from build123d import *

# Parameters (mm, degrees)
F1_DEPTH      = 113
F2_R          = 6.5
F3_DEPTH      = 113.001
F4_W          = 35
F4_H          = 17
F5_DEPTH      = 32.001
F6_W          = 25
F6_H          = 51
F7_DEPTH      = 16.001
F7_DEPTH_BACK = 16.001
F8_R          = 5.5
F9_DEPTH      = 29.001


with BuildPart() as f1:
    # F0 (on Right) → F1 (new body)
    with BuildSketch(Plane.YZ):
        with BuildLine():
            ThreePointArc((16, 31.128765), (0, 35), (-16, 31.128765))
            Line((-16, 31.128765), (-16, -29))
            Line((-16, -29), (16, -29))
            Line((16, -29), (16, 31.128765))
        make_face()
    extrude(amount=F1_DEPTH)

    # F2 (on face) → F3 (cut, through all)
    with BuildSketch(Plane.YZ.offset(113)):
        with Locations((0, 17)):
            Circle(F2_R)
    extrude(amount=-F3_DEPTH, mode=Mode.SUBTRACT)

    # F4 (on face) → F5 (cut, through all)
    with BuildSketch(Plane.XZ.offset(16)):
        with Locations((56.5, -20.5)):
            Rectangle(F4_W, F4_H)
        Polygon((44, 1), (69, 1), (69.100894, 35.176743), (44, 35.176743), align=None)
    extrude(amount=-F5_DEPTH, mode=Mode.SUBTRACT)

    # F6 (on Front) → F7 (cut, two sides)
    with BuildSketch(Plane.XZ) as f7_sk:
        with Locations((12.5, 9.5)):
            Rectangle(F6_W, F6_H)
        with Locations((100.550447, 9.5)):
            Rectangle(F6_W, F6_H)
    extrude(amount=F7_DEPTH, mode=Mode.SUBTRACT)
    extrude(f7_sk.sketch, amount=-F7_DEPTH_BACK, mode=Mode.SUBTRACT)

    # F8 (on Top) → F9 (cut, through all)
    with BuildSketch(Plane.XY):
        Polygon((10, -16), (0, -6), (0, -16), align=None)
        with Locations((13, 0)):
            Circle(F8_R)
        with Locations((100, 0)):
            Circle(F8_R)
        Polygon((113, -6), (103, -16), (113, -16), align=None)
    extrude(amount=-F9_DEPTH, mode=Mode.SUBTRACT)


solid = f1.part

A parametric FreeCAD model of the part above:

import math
import FreeCAD as App
import Part
import Sketcher
from FreeCAD import Vector
Q = App.Units.Quantity


def add_polygon(sketch, points):
    """Adds a closed chain of lines whose ends are joined by coincident constraints."""
    first, n = sketch.GeometryCount, len(points)
    for a, b in zip(points, points[1:] + points[:1]):
        sketch.addGeometry(Part.LineSegment(App.Vector(*a, 0), App.Vector(*b, 0)), False)
    for i in range(n):
        sketch.addConstraint(Sketcher.Constraint("Coincident", first + i, 2, first + (i + 1) % n, 1))

doc = App.newDocument("Part")
body = doc.addObject("PartDesign::Body", "Body")

sketch1 = body.newObject("Sketcher::SketchObject", "Sketch")
sketch1.AttachmentSupport = (doc.getObject("YZ_Plane"), [""])
sketch1.MapMode = "FlatFace"
sketch1.addGeometry(Part.ArcOfCircle(Part.Circle(Vector(0, -0.000001, 0), Vector(0, 0, 1), 35.000001), math.radians(62.797107), math.radians(117.202893)), False)
sketch1.addGeometry(Part.LineSegment(Vector(-16, 31.128765, 0), Vector(-16, -29, 0)), False)
sketch1.addGeometry(Part.LineSegment(Vector(-16, -29, 0), Vector(16, -29, 0)), False)
sketch1.addGeometry(Part.LineSegment(Vector(16, -29, 0), Vector(16, 31.128765, 0)), False)
sketch1.addConstraint(Sketcher.Constraint("Coincident", 0, 2, 1, 1))
sketch1.addConstraint(Sketcher.Constraint("Coincident", 1, 2, 2, 1))
sketch1.addConstraint(Sketcher.Constraint("Coincident", 2, 2, 3, 1))
sketch1.addConstraint(Sketcher.Constraint("Coincident", 3, 2, 0, 1))
sketch1.addConstraint(Sketcher.Constraint("Vertical", 1))
sketch1.addConstraint(Sketcher.Constraint("Horizontal", 2))
sketch1.addConstraint(Sketcher.Constraint("Vertical", 3))
sketch1.addConstraint(Sketcher.Constraint("Coincident", 0, 3, -1, 1))
sketch1.addConstraint(Sketcher.Constraint("Horizontal", 0, 2, 3, 2))
sketch1.addConstraint(Sketcher.Constraint("Radius", 0, Q("35.000001 mm")))
sketch1.addConstraint(Sketcher.Constraint("DistanceX", 2, 1, 2, 2, Q("32 mm")))
sketch1.addConstraint(Sketcher.Constraint("DistanceY", 1, 2, -1, 1, Q("29 mm")))
pad1 = body.newObject("PartDesign::Pad", "Pad")
pad1.Profile = sketch1
pad1.Length = 113

sketch2 = body.newObject("Sketcher::SketchObject", "Sketch001")
sketch2.AttachmentSupport = (doc.getObject("YZ_Plane"), [""])
sketch2.MapMode = "FlatFace"
sketch2.AttachmentOffset = App.Placement(Vector(0, 0, 113), App.Rotation())
sketch2.addGeometry(Part.Circle(Vector(0, 17, 0), Vector(0, 0, 1), 6.5), False)
sketch2.addConstraint(Sketcher.Constraint("PointOnObject", 0, 3, -2))
sketch2.addConstraint(Sketcher.Constraint("Diameter", 0, Q("13 mm")))
sketch2.addConstraint(Sketcher.Constraint("DistanceY", -1, 1, 0, 3, Q("17 mm")))
pocket1 = body.newObject("PartDesign::Pocket", "Pocket")
pocket1.Profile = sketch2
pocket1.Type = "ThroughAll"

sketch3 = body.newObject("Sketcher::SketchObject", "Sketch002")
sketch3.AttachmentSupport = (doc.getObject("XZ_Plane"), [""])
sketch3.MapMode = "FlatFace"
sketch3.AttachmentOffset = App.Placement(Vector(0, 0, 16), App.Rotation())
add_polygon(sketch3, [(39, -12), (39, -29), (74, -29), (74, -12)])
add_polygon(sketch3, [(44, 1), (69, 1), (69.100894, 35.176743), (44, 35.176743)])
sketch3.addConstraint(Sketcher.Constraint("Vertical", 0))
sketch3.addConstraint(Sketcher.Constraint("Horizontal", 1))
sketch3.addConstraint(Sketcher.Constraint("Vertical", 2))
sketch3.addConstraint(Sketcher.Constraint("Horizontal", 3))
sketch3.addConstraint(Sketcher.Constraint("Horizontal", 4))
sketch3.addConstraint(Sketcher.Constraint("Horizontal", 6))
sketch3.addConstraint(Sketcher.Constraint("Vertical", 7))
sketch3.addConstraint(Sketcher.Constraint("DistanceX", 1, 1, 1, 2, Q("35 mm")))
sketch3.addConstraint(Sketcher.Constraint("DistanceX", 4, 1, 4, 2, Q("25 mm")))
sketch3.addConstraint(Sketcher.Constraint("DistanceY", 0, 2, 0, 1, Q("17 mm")))
sketch3.addConstraint(Sketcher.Constraint("DistanceX", -1, 1, 0, 2, Q("39 mm")))
sketch3.addConstraint(Sketcher.Constraint("DistanceY", 0, 2, -1, 1, Q("29 mm")))
sketch3.addConstraint(Sketcher.Constraint("DistanceX", -1, 1, 4, 2, Q("69 mm")))
sketch3.addConstraint(Sketcher.Constraint("DistanceY", -1, 1, 4, 2, Q("1 mm")))
sketch3.addConstraint(Sketcher.Constraint("Distance", 5, Q("34.176892 mm")))
sketch3.addConstraint(Sketcher.Constraint("DistanceX", 6, 2, 6, 1, Q("25.100894 mm")))
pocket2 = body.newObject("PartDesign::Pocket", "Pocket001")
pocket2.Profile = sketch3
pocket2.Type = "ThroughAll"

sketch4 = body.newObject("Sketcher::SketchObject", "Sketch003")
sketch4.AttachmentSupport = (doc.getObject("XZ_Plane"), [""])
sketch4.MapMode = "FlatFace"
add_polygon(sketch4, [(0, 35), (0, -16), (25, -16), (25, 35)])
add_polygon(sketch4, [(88.050447, 35), (88.050447, -16), (113.050447, -16), (113.050447, 35)])
sketch4.addConstraint(Sketcher.Constraint("Vertical", 0))
sketch4.addConstraint(Sketcher.Constraint("Horizontal", 1))
sketch4.addConstraint(Sketcher.Constraint("Vertical", 2))
sketch4.addConstraint(Sketcher.Constraint("Horizontal", 3))
sketch4.addConstraint(Sketcher.Constraint("Vertical", 4))
sketch4.addConstraint(Sketcher.Constraint("Horizontal", 5))
sketch4.addConstraint(Sketcher.Constraint("Vertical", 6))
sketch4.addConstraint(Sketcher.Constraint("Horizontal", 7))
sketch4.addConstraint(Sketcher.Constraint("PointOnObject", 0, 2, -2))
sketch4.addConstraint(Sketcher.Constraint("Horizontal", 1, 2, 4, 2))
sketch4.addConstraint(Sketcher.Constraint("Horizontal", 3, 2, 6, 2))
sketch4.addConstraint(Sketcher.Constraint("Equal", 3, 5))
sketch4.addConstraint(Sketcher.Constraint("DistanceX", 1, 1, 1, 2, Q("25 mm")))
sketch4.addConstraint(Sketcher.Constraint("DistanceY", 0, 2, 0, 1, Q("51 mm")))
sketch4.addConstraint(Sketcher.Constraint("DistanceY", 0, 2, -1, 1, Q("16 mm")))
sketch4.addConstraint(Sketcher.Constraint("DistanceX", -1, 1, 4, 2, Q("88.050447 mm")))
pocket3 = body.newObject("PartDesign::Pocket", "Pocket002")
pocket3.Profile = sketch4
pocket3.Type = "ThroughAll"
pocket3.Midplane = True

sketch5 = body.newObject("Sketcher::SketchObject", "Sketch004")
sketch5.AttachmentSupport = (doc.getObject("XY_Plane"), [""])
sketch5.MapMode = "FlatFace"
add_polygon(sketch5, [(10, -16), (0, -6), (0, -16)])
sketch5.addGeometry(Part.Circle(Vector(13, 0, 0), Vector(0, 0, 1), 5.5), False)
sketch5.addGeometry(Part.Circle(Vector(100, 0, 0), Vector(0, 0, 1), 5.5), False)
add_polygon(sketch5, [(113, -6), (103, -16), (113, -16)])
sketch5.addConstraint(Sketcher.Constraint("Vertical", 1))
sketch5.addConstraint(Sketcher.Constraint("Horizontal", 2))
sketch5.addConstraint(Sketcher.Constraint("Horizontal", 6))
sketch5.addConstraint(Sketcher.Constraint("Vertical", 7))
sketch5.addConstraint(Sketcher.Constraint("Equal", 3, 4))
sketch5.addConstraint(Sketcher.Constraint("PointOnObject", 3, 3, -1))
sketch5.addConstraint(Sketcher.Constraint("PointOnObject", 4, 3, -1))
sketch5.addConstraint(Sketcher.Constraint("PointOnObject", 0, 2, -2))
sketch5.addConstraint(Sketcher.Constraint("Perpendicular", 0, 5))
sketch5.addConstraint(Sketcher.Constraint("Horizontal", 2, 2, 5, 2))
sketch5.addConstraint(Sketcher.Constraint("Horizontal", 0, 2, 7, 2))
sketch5.addConstraint(Sketcher.Constraint("Equal", 2, 6))
sketch5.addConstraint(Sketcher.Constraint("Diameter", 3, Q("11 mm")))
sketch5.addConstraint(Sketcher.Constraint("DistanceX", 2, 1, 2, 2, Q("10 mm")))
sketch5.addConstraint(Sketcher.Constraint("DistanceX", -1, 1, 3, 3, Q("13 mm")))
sketch5.addConstraint(Sketcher.Constraint("DistanceX", -1, 1, 4, 3, Q("100 mm")))
sketch5.addConstraint(Sketcher.Constraint("DistanceY", 0, 2, -1, 1, Q("6 mm")))
sketch5.addConstraint(Sketcher.Constraint("DistanceX", -1, 1, 5, 2, Q("103 mm")))
pocket4 = body.newObject("PartDesign::Pocket", "Pocket003")
pocket4.Profile = sketch5
pocket4.Type = "ThroughAll"

doc.recompute()
